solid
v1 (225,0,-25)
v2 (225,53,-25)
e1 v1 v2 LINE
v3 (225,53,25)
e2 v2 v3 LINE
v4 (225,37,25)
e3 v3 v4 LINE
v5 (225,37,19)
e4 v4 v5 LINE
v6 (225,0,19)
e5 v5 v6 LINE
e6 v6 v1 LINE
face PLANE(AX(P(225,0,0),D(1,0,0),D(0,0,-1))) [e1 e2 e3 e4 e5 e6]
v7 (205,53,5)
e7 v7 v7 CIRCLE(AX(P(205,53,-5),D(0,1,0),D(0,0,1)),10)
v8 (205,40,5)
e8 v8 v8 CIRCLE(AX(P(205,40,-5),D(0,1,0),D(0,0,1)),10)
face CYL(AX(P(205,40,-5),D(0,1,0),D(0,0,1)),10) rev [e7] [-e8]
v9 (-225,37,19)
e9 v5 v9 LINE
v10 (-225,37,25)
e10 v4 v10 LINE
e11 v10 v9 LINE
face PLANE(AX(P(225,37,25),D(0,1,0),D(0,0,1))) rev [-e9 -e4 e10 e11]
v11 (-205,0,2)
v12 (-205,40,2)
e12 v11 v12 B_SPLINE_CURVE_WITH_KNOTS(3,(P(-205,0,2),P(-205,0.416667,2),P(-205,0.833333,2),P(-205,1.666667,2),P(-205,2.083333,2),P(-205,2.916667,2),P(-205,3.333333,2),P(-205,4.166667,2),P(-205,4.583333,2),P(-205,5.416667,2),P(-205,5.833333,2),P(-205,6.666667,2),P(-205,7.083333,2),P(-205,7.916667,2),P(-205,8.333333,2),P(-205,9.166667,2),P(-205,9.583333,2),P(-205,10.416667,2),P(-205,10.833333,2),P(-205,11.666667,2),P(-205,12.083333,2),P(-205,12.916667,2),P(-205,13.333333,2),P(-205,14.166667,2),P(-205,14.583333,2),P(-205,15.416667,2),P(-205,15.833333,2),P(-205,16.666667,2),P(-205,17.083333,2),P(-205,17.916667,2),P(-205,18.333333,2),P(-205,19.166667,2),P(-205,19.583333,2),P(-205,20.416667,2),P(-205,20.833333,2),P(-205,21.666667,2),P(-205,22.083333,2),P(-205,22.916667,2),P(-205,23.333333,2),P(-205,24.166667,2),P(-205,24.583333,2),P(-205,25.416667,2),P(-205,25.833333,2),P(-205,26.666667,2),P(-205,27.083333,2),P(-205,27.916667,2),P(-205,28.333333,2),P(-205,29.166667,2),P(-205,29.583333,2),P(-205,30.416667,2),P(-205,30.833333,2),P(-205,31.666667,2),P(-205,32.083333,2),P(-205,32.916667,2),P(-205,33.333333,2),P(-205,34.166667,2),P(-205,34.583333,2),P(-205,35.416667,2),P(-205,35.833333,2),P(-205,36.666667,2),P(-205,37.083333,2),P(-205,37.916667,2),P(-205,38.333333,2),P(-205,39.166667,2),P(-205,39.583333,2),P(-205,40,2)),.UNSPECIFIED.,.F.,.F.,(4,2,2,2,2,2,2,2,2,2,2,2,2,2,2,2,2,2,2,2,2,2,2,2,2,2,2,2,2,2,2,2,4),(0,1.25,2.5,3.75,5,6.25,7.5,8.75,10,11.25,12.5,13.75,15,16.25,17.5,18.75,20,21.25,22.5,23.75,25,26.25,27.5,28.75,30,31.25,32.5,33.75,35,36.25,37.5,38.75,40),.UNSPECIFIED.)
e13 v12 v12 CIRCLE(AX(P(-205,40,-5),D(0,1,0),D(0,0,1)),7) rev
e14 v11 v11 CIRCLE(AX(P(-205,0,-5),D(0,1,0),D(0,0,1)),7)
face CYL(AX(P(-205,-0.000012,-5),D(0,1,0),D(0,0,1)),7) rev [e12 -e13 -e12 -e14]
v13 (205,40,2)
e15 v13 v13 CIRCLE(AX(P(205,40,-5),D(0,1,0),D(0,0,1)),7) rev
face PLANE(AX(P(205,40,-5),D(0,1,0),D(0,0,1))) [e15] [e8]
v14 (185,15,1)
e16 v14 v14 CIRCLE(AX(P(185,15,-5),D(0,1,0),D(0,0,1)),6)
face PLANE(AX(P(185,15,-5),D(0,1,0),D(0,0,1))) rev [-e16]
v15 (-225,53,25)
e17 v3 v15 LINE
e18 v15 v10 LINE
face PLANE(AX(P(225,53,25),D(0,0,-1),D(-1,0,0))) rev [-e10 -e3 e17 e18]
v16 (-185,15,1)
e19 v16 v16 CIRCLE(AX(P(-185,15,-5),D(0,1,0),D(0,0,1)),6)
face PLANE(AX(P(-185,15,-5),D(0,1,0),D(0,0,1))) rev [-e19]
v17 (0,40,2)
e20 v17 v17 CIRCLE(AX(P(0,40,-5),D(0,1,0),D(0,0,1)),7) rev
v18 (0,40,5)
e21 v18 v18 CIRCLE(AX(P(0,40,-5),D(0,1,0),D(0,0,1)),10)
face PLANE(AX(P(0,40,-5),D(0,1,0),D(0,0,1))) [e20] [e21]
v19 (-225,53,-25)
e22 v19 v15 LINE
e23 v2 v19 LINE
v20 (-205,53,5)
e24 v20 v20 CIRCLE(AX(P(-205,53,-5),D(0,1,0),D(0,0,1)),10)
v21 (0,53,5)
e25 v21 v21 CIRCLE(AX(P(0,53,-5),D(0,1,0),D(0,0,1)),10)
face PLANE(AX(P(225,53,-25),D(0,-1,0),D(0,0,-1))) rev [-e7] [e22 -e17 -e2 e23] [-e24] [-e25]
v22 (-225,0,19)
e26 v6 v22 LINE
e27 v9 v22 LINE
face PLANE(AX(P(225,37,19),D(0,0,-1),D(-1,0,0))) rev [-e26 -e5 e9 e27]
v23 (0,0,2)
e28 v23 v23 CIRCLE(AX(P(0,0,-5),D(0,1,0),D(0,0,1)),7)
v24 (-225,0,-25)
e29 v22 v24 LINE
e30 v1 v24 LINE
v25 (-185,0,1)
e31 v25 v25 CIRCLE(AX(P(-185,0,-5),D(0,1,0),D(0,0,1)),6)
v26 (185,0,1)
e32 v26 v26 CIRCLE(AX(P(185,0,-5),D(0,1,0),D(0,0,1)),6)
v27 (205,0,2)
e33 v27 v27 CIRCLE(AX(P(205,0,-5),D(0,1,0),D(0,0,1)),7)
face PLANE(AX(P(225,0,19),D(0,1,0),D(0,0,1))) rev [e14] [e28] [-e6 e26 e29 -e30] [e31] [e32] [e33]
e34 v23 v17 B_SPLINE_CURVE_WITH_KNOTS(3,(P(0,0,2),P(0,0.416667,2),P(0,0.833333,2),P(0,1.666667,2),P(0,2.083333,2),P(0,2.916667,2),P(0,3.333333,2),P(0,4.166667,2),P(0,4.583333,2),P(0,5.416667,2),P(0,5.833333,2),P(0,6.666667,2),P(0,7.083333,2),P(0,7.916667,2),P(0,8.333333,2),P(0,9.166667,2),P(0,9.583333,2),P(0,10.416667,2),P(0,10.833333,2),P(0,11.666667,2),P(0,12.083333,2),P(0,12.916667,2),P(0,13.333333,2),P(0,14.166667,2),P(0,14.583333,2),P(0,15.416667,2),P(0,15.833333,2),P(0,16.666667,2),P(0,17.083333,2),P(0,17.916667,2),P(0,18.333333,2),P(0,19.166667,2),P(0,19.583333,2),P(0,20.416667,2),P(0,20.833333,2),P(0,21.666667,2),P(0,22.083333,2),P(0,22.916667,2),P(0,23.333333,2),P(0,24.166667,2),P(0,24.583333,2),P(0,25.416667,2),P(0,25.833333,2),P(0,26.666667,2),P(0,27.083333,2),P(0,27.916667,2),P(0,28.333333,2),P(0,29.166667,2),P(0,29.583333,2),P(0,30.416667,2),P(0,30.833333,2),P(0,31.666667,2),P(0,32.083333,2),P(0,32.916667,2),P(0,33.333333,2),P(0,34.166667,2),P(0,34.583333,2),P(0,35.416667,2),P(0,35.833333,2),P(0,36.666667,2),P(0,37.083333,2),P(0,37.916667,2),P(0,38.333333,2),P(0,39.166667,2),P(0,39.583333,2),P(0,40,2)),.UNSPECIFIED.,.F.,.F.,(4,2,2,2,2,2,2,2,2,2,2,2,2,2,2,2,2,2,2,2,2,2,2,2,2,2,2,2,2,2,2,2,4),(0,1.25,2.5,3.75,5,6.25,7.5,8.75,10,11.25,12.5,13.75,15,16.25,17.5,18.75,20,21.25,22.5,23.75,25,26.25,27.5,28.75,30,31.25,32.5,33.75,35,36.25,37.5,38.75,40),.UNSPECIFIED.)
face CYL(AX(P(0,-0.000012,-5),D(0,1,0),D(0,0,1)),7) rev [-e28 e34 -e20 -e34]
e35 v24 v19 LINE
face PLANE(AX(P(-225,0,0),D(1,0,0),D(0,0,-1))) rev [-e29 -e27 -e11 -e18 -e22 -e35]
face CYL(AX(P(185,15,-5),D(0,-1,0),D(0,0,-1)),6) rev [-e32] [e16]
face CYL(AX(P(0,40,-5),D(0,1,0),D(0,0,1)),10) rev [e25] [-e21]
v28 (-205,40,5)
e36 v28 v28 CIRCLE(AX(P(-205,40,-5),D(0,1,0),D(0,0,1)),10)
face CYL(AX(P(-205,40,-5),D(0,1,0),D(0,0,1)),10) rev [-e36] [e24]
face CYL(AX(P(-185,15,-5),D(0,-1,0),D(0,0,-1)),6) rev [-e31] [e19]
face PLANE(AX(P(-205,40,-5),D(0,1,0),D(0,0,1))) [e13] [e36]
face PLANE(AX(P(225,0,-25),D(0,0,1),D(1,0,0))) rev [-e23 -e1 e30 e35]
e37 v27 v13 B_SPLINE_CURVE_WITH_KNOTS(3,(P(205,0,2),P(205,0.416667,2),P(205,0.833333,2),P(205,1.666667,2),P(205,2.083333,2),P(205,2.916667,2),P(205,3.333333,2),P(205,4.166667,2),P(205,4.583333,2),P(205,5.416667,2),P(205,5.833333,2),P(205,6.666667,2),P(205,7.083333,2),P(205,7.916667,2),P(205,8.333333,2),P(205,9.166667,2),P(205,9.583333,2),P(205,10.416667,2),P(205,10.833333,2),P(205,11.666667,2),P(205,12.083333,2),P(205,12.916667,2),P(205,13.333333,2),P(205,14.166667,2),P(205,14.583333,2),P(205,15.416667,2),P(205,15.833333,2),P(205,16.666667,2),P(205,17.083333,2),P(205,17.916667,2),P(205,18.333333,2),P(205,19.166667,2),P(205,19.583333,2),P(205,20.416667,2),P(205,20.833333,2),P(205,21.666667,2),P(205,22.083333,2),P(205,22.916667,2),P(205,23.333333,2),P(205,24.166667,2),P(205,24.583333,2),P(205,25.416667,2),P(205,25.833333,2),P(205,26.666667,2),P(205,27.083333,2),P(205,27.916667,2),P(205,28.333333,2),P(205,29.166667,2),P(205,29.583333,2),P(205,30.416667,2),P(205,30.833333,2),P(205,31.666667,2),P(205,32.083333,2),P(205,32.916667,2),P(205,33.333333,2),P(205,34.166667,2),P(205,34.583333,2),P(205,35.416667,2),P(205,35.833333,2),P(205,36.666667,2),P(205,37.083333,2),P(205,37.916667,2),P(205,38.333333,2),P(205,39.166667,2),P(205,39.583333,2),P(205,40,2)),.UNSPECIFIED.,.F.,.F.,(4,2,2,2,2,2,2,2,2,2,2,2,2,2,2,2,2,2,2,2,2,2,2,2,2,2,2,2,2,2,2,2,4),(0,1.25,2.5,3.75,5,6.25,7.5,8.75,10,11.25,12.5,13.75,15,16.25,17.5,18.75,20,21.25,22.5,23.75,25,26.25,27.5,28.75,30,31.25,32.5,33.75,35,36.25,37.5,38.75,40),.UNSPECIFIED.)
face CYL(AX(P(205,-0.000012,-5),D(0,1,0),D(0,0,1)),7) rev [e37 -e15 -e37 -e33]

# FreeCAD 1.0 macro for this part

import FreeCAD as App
import Part
import Sketcher

V = App.Vector
Q = App.Units.Quantity

doc = App.newDocument("Part")
body = doc.addObject("PartDesign::Body", "Body")

sketch1 = body.newObject("Sketcher::SketchObject", "Sketch")
sketch1.AttachmentSupport = (doc.getObject("YZ_Plane"), [""])
sketch1.MapMode = "FlatFace"
sketch1.addGeometry(Part.LineSegment(V(0, 19, 0), V(0, -25, 0)), False)
sketch1.addGeometry(Part.LineSegment(V(0, -25, 0), V(53, -25, 0)), False)
sketch1.addGeometry(Part.LineSegment(V(53, -25, 0), V(53, 25, 0)), False)
sketch1.addGeometry(Part.LineSegment(V(53, 25, 0), V(37, 25, 0)), False)
sketch1.addGeometry(Part.LineSegment(V(37, 25, 0), V(37, 19, 0)), False)
sketch1.addGeometry(Part.LineSegment(V(37, 19, 0), V(0, 19, 0)), False)
sketch1.addConstraint(Sketcher.Constraint("Coincident", 0, 2, 1, 1))
sketch1.addConstraint(Sketcher.Constraint("Coincident", 1, 2, 2, 1))
sketch1.addConstraint(Sketcher.Constraint("Coincident", 2, 2, 3, 1))
sketch1.addConstraint(Sketcher.Constraint("Coincident", 3, 2, 4, 1))
sketch1.addConstraint(Sketcher.Constraint("Coincident", 4, 2, 5, 1))
sketch1.addConstraint(Sketcher.Constraint("Coincident", 5, 2, 0, 1))
sketch1.addConstraint(Sketcher.Constraint("Vertical", 0))
sketch1.addConstraint(Sketcher.Constraint("Horizontal", 1))
sketch1.addConstraint(Sketcher.Constraint("Vertical", 2))
sketch1.addConstraint(Sketcher.Constraint("Horizontal", 3))
sketch1.addConstraint(Sketcher.Constraint("Vertical", 4))
sketch1.addConstraint(Sketcher.Constraint("Horizontal", 5))
sketch1.addConstraint(Sketcher.Constraint("PointOnObject", 0, 2, -2))
sketch1.addConstraint(Sketcher.Constraint("DistanceX", 1, 1, 1, 2, Q("53 mm")))
sketch1.addConstraint(Sketcher.Constraint("DistanceX", 3, 2, 3, 1, Q("16 mm")))
sketch1.addConstraint(Sketcher.Constraint("DistanceY", 0, 2, 0, 1, Q("44 mm")))
sketch1.addConstraint(Sketcher.Constraint("DistanceY", 2, 1, 2, 2, Q("50 mm")))
sketch1.addConstraint(Sketcher.Constraint("DistanceY", 0, 2, -1, 1, Q("25 mm")))
pad1 = body.newObject("PartDesign::Pad", "Pad")
pad1.Profile = sketch1
pad1.Type = "TwoLengths"
pad1.Length = 225
pad1.Length2 = 225

sketch2 = body.newObject("Sketcher::SketchObject", "Sketch001")
sketch2.AttachmentSupport = (doc.getObject("XZ_Plane"), [""])
sketch2.MapMode = "FlatFace"
sketch2.addGeometry(Part.Circle(V(-205, -5, 0), V(0, 0, 1), 7), False)
sketch2.addGeometry(Part.Circle(V(0, -5, 0), V(0, 0, 1), 7), False)
sketch2.addGeometry(Part.Circle(V(205, -5, 0), V(0, 0, 1), 7), False)
sketch2.addConstraint(Sketcher.Constraint("Equal", 0, 1))
sketch2.addConstraint(Sketcher.Constraint("Equal", 1, 2))
sketch2.addConstraint(Sketcher.Constraint("Symmetric", 0, 3, 2, 3, -2))
sketch2.addConstraint(Sketcher.Constraint("PointOnObject", 1, 3, -2))
sketch2.addConstraint(Sketcher.Constraint("Horizontal", 0, 3, 1, 3))
sketch2.addConstraint(Sketcher.Constraint("Diameter", 0, Q("14 mm")))
sketch2.addConstraint(Sketcher.Constraint("DistanceX", 0, 3, -1, 1, Q("205 mm")))
sketch2.addConstraint(Sketcher.Constraint("DistanceY", 0, 3, -1, 1, Q("5 mm")))
pocket1 = body.newObject("PartDesign::Pocket", "Pocket")
pocket1.Profile = sketch2
pocket1.Type = "ThroughAll"
pocket1.Midplane = True

sketch3 = body.newObject("Sketcher::SketchObject", "Sketch002")
sketch3.AttachmentSupport = (doc.getObject("XZ_Plane"), [""])
sketch3.MapMode = "FlatFace"
sketch3.AttachmentOffset = App.Placement(V(0, 0, -53), App.Rotation())
sketch3.addGeometry(Part.Circle(V(-205, -5, 0), V(0, 0, 1), 10), False)
sketch3.addGeometry(Part.Circle(V(0, -5, 0), V(0, 0, 1), 10), False)
sketch3.addGeometry(Part.Circle(V(205, -5, 0), V(0, 0, 1), 10), False)
sketch3.addConstraint(Sketcher.Constraint("Equal", 0, 1))
sketch3.addConstraint(Sketcher.Constraint("Equal", 1, 2))
sketch3.addConstraint(Sketcher.Constraint("Symmetric", 0, 3, 2, 3, -2))
sketch3.addConstraint(Sketcher.Constraint("PointOnObject", 1, 3, -2))
sketch3.addConstraint(Sketcher.Constraint("Horizontal", 0, 3, 1, 3))
sketch3.addConstraint(Sketcher.Constraint("Diameter", 0, Q("20 mm")))
sketch3.addConstraint(Sketcher.Constraint("DistanceX", 0, 3, -1, 1, Q("205 mm")))
sketch3.addConstraint(Sketcher.Constraint("DistanceY", 0, 3, -1, 1, Q("5 mm")))
pocket2 = body.newObject("PartDesign::Pocket", "Pocket001")
pocket2.Profile = sketch3
pocket2.Length = 13
pocket2.Reversed = True

sketch4 = body.newObject("Sketcher::SketchObject", "Sketch003")
sketch4.AttachmentSupport = (doc.getObject("XZ_Plane"), [""])
sketch4.MapMode = "FlatFace"
sketch4.addGeometry(Part.Circle(V(-185, -5, 0), V(0, 0, 1), 6), False)
sketch4.addGeometry(Part.Circle(V(185, -5, 0), V(0, 0, 1), 6), False)
sketch4.addConstraint(Sketcher.Constraint("Equal", 0, 1))
sketch4.addConstraint(Sketcher.Constraint("Symmetric", 0, 3, 1, 3, -2))
sketch4.addConstraint(Sketcher.Constraint("Diameter", 0, Q("12 mm")))
sketch4.addConstraint(Sketcher.Constraint("DistanceX", 0, 3, -1, 1, Q("185 mm")))
sketch4.addConstraint(Sketcher.Constraint("DistanceY", 0, 3, -1, 1, Q("5 mm")))
pocket3 = body.newObject("PartDesign::Pocket", "Pocket002")
pocket3.Profile = sketch4
pocket3.Length = 15

doc.recompute()
